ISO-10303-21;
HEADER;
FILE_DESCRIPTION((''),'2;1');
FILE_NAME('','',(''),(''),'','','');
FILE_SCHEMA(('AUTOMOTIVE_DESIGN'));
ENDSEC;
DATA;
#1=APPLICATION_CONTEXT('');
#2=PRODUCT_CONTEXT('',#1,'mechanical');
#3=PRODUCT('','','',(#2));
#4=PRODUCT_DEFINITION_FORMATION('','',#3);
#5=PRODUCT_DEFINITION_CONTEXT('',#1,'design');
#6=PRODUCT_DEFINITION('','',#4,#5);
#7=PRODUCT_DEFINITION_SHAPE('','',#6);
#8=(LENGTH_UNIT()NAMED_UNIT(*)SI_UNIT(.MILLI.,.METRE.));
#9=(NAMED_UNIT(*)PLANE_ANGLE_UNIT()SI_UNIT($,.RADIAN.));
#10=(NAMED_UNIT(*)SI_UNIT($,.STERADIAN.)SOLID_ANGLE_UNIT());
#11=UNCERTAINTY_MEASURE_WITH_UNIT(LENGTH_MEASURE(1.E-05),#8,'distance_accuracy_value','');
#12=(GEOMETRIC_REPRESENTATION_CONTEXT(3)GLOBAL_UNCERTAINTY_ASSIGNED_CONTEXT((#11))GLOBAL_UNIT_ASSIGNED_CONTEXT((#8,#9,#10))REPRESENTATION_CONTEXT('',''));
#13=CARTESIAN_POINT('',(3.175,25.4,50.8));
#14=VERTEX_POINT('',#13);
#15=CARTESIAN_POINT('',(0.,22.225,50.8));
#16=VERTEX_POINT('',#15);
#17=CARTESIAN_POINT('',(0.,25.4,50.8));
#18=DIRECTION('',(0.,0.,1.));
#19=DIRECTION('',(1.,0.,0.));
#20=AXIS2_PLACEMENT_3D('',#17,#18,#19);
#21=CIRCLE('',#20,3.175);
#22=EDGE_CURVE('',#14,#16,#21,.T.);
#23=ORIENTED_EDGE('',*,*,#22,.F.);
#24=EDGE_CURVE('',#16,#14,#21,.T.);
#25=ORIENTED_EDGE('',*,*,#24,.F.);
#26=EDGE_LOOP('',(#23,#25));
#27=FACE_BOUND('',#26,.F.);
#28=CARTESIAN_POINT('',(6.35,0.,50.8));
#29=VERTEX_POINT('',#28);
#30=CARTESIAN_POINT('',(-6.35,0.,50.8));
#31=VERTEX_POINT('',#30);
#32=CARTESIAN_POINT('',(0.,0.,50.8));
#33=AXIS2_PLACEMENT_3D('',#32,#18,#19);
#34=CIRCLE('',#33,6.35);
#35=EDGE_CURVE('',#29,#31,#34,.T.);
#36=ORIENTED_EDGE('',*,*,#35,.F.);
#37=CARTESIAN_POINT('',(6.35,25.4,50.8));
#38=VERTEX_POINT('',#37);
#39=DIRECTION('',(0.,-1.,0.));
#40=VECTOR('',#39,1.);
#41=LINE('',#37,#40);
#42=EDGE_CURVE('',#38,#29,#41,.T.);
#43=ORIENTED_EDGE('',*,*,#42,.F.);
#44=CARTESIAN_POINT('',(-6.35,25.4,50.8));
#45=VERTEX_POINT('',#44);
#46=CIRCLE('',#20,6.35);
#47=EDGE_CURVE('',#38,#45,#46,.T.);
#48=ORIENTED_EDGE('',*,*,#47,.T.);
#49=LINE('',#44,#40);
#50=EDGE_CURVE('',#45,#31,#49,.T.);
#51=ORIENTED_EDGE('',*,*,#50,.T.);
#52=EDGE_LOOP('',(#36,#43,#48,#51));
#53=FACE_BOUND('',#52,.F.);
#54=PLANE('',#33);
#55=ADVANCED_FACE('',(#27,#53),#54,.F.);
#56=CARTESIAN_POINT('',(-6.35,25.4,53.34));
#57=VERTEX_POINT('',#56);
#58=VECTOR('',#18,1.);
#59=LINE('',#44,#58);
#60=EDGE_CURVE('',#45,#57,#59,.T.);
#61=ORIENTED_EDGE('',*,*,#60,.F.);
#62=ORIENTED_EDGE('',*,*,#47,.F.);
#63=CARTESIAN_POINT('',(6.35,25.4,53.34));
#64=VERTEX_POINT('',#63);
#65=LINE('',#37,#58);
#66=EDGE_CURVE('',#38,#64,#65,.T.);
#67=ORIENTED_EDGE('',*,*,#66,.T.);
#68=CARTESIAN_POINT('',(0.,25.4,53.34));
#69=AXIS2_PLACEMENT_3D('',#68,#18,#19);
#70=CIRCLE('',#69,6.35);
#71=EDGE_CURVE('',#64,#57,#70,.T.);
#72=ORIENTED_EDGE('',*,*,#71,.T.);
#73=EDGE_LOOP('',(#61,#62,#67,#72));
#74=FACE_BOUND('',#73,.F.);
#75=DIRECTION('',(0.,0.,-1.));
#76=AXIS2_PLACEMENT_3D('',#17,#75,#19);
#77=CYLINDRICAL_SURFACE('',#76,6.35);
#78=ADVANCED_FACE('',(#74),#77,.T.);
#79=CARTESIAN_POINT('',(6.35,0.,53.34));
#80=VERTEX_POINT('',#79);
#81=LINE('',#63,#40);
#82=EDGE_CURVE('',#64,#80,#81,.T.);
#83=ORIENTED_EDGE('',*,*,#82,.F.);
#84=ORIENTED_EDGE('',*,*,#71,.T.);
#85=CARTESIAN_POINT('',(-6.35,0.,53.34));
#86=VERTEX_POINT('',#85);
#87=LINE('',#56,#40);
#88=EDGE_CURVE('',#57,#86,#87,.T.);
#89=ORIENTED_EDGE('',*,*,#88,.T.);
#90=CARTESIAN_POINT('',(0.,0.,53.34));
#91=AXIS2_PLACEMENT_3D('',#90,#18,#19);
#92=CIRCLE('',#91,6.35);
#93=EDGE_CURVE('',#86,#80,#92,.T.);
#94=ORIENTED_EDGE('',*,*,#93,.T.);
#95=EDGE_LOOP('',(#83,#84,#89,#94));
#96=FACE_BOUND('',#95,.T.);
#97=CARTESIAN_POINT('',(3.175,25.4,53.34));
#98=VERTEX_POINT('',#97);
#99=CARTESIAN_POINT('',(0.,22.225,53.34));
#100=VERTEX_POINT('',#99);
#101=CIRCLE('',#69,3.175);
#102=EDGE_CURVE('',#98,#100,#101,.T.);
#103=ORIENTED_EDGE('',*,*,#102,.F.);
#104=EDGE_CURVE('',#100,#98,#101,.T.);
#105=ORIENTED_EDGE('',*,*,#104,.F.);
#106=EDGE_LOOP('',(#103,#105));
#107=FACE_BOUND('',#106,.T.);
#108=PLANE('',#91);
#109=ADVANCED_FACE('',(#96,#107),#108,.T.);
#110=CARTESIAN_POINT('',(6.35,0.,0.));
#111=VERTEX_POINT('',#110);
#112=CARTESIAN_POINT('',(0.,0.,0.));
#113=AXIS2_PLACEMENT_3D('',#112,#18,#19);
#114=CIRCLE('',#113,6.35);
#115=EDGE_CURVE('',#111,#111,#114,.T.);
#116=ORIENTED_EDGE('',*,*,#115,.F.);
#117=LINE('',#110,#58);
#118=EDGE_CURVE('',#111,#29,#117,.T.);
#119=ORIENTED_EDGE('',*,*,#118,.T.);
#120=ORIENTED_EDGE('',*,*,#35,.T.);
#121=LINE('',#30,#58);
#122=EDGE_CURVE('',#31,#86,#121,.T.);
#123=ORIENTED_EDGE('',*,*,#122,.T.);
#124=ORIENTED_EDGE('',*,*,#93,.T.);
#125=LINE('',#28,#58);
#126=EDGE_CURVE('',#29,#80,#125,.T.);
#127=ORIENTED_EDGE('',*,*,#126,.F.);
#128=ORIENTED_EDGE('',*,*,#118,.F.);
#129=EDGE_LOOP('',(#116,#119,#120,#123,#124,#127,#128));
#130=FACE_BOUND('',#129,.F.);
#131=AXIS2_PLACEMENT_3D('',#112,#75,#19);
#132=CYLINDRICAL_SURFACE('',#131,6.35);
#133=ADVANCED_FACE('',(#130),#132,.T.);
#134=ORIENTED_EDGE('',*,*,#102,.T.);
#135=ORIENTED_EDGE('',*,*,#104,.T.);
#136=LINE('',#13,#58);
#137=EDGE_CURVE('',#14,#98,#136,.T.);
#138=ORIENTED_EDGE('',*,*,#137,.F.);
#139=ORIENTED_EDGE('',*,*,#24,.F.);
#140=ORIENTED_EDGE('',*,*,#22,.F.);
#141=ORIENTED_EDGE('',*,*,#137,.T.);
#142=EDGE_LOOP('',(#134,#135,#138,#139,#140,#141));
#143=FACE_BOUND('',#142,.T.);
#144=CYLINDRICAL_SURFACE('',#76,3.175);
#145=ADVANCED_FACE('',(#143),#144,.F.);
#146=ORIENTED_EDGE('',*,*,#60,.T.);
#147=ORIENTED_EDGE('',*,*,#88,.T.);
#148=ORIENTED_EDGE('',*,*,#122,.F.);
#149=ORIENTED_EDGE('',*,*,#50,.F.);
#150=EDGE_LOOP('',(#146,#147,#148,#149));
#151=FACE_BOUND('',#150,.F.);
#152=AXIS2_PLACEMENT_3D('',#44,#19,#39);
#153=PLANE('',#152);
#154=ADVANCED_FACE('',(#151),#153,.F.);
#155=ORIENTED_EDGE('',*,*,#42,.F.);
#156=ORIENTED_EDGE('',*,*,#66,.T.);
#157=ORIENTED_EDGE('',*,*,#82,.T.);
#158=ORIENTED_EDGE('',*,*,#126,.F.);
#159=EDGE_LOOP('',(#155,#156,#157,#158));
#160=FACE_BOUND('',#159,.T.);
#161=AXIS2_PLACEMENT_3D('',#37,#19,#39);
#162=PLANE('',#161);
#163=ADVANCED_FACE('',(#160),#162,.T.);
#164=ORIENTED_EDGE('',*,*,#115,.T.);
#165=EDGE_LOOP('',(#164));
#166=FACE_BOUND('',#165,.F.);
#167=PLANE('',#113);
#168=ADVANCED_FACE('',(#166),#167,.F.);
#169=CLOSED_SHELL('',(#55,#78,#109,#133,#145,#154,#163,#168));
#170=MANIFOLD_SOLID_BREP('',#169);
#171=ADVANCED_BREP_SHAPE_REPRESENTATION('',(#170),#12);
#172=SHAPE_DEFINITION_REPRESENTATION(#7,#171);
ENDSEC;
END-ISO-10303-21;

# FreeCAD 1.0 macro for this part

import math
import FreeCAD as App
import Part
import Sketcher
Q = App.Units.Quantity

doc = App.newDocument("Part")
body = doc.addObject("PartDesign::Body", "Body")

# Sketch on XY plane
sketch1 = body.newObject("Sketcher::SketchObject", "Sketch")
sketch1.AttachmentSupport = (doc.getObject("XY_Plane"), [""])
sketch1.MapMode = "FlatFace"
sketch1.addGeometry(Part.Circle(App.Vector(0, 0, 0), App.Vector(0, 0, 1), 6), False)
sketch1.addConstraint([
    Sketcher.Constraint("Coincident", 0, 3, -1, 1),
    Sketcher.Constraint("Diameter", 0, Q("0.5 in")),
])
pad1 = body.newObject("PartDesign::Pad", "Pad")
pad1.Profile = sketch1
pad1.Length = Q("2 in")

# Sketch on XY plane
sketch2 = body.newObject("Sketcher::SketchObject", "Sketch001")
sketch2.AttachmentSupport = (doc.getObject("XY_Plane"), [""])
sketch2.MapMode = "FlatFace"
sketch2.AttachmentOffset = App.Placement(App.Vector(0, 0, 2 * 25.4), App.Rotation())
sketch2.addGeometry([
    Part.ArcOfCircle(Part.Circle(App.Vector(0, 0, 0), App.Vector(0, 0, 1), 6.3), math.radians(180), math.radians(360)),  # 0
    Part.LineSegment(App.Vector(6.3, 0, 0), App.Vector(6.3, 25.4, 0)),  # 1
    Part.ArcOfCircle(Part.Circle(App.Vector(0, 25.4, 0), App.Vector(0, 0, 1), 6.3), math.radians(0), math.radians(180)),  # 2
    Part.LineSegment(App.Vector(-6.3, 25.4, 0), App.Vector(-6.3, 0, 0)),  # 3
    Part.Circle(App.Vector(0, 25.4, 0), App.Vector(0, 0, 1), 3.2),  # 4
], False)
sketch2.addConstraint([
    Sketcher.Constraint("Tangent", 0, 2, 1, 1),
    Sketcher.Constraint("Tangent", 1, 2, 2, 1),
    Sketcher.Constraint("Tangent", 2, 2, 3, 1),
    Sketcher.Constraint("Tangent", 3, 2, 0, 1),
    Sketcher.Constraint("Vertical", 1),
    Sketcher.Constraint("Vertical", 3),
    Sketcher.Constraint("Coincident", 0, 3, -1, 1),
    Sketcher.Constraint("Coincident", 4, 3, 2, 3),
    Sketcher.Constraint("Diameter", 4, Q("0.25 in")),
    Sketcher.Constraint("DistanceY", 1, 1, 1, 2, Q("1 in")),
    Sketcher.Constraint("Radius", 0, Q("0.25 in")),
])
pad2 = body.newObject("PartDesign::Pad", "Pad001")
pad2.Profile = sketch2
pad2.Length = Q("0.1 in")

doc.recompute()
